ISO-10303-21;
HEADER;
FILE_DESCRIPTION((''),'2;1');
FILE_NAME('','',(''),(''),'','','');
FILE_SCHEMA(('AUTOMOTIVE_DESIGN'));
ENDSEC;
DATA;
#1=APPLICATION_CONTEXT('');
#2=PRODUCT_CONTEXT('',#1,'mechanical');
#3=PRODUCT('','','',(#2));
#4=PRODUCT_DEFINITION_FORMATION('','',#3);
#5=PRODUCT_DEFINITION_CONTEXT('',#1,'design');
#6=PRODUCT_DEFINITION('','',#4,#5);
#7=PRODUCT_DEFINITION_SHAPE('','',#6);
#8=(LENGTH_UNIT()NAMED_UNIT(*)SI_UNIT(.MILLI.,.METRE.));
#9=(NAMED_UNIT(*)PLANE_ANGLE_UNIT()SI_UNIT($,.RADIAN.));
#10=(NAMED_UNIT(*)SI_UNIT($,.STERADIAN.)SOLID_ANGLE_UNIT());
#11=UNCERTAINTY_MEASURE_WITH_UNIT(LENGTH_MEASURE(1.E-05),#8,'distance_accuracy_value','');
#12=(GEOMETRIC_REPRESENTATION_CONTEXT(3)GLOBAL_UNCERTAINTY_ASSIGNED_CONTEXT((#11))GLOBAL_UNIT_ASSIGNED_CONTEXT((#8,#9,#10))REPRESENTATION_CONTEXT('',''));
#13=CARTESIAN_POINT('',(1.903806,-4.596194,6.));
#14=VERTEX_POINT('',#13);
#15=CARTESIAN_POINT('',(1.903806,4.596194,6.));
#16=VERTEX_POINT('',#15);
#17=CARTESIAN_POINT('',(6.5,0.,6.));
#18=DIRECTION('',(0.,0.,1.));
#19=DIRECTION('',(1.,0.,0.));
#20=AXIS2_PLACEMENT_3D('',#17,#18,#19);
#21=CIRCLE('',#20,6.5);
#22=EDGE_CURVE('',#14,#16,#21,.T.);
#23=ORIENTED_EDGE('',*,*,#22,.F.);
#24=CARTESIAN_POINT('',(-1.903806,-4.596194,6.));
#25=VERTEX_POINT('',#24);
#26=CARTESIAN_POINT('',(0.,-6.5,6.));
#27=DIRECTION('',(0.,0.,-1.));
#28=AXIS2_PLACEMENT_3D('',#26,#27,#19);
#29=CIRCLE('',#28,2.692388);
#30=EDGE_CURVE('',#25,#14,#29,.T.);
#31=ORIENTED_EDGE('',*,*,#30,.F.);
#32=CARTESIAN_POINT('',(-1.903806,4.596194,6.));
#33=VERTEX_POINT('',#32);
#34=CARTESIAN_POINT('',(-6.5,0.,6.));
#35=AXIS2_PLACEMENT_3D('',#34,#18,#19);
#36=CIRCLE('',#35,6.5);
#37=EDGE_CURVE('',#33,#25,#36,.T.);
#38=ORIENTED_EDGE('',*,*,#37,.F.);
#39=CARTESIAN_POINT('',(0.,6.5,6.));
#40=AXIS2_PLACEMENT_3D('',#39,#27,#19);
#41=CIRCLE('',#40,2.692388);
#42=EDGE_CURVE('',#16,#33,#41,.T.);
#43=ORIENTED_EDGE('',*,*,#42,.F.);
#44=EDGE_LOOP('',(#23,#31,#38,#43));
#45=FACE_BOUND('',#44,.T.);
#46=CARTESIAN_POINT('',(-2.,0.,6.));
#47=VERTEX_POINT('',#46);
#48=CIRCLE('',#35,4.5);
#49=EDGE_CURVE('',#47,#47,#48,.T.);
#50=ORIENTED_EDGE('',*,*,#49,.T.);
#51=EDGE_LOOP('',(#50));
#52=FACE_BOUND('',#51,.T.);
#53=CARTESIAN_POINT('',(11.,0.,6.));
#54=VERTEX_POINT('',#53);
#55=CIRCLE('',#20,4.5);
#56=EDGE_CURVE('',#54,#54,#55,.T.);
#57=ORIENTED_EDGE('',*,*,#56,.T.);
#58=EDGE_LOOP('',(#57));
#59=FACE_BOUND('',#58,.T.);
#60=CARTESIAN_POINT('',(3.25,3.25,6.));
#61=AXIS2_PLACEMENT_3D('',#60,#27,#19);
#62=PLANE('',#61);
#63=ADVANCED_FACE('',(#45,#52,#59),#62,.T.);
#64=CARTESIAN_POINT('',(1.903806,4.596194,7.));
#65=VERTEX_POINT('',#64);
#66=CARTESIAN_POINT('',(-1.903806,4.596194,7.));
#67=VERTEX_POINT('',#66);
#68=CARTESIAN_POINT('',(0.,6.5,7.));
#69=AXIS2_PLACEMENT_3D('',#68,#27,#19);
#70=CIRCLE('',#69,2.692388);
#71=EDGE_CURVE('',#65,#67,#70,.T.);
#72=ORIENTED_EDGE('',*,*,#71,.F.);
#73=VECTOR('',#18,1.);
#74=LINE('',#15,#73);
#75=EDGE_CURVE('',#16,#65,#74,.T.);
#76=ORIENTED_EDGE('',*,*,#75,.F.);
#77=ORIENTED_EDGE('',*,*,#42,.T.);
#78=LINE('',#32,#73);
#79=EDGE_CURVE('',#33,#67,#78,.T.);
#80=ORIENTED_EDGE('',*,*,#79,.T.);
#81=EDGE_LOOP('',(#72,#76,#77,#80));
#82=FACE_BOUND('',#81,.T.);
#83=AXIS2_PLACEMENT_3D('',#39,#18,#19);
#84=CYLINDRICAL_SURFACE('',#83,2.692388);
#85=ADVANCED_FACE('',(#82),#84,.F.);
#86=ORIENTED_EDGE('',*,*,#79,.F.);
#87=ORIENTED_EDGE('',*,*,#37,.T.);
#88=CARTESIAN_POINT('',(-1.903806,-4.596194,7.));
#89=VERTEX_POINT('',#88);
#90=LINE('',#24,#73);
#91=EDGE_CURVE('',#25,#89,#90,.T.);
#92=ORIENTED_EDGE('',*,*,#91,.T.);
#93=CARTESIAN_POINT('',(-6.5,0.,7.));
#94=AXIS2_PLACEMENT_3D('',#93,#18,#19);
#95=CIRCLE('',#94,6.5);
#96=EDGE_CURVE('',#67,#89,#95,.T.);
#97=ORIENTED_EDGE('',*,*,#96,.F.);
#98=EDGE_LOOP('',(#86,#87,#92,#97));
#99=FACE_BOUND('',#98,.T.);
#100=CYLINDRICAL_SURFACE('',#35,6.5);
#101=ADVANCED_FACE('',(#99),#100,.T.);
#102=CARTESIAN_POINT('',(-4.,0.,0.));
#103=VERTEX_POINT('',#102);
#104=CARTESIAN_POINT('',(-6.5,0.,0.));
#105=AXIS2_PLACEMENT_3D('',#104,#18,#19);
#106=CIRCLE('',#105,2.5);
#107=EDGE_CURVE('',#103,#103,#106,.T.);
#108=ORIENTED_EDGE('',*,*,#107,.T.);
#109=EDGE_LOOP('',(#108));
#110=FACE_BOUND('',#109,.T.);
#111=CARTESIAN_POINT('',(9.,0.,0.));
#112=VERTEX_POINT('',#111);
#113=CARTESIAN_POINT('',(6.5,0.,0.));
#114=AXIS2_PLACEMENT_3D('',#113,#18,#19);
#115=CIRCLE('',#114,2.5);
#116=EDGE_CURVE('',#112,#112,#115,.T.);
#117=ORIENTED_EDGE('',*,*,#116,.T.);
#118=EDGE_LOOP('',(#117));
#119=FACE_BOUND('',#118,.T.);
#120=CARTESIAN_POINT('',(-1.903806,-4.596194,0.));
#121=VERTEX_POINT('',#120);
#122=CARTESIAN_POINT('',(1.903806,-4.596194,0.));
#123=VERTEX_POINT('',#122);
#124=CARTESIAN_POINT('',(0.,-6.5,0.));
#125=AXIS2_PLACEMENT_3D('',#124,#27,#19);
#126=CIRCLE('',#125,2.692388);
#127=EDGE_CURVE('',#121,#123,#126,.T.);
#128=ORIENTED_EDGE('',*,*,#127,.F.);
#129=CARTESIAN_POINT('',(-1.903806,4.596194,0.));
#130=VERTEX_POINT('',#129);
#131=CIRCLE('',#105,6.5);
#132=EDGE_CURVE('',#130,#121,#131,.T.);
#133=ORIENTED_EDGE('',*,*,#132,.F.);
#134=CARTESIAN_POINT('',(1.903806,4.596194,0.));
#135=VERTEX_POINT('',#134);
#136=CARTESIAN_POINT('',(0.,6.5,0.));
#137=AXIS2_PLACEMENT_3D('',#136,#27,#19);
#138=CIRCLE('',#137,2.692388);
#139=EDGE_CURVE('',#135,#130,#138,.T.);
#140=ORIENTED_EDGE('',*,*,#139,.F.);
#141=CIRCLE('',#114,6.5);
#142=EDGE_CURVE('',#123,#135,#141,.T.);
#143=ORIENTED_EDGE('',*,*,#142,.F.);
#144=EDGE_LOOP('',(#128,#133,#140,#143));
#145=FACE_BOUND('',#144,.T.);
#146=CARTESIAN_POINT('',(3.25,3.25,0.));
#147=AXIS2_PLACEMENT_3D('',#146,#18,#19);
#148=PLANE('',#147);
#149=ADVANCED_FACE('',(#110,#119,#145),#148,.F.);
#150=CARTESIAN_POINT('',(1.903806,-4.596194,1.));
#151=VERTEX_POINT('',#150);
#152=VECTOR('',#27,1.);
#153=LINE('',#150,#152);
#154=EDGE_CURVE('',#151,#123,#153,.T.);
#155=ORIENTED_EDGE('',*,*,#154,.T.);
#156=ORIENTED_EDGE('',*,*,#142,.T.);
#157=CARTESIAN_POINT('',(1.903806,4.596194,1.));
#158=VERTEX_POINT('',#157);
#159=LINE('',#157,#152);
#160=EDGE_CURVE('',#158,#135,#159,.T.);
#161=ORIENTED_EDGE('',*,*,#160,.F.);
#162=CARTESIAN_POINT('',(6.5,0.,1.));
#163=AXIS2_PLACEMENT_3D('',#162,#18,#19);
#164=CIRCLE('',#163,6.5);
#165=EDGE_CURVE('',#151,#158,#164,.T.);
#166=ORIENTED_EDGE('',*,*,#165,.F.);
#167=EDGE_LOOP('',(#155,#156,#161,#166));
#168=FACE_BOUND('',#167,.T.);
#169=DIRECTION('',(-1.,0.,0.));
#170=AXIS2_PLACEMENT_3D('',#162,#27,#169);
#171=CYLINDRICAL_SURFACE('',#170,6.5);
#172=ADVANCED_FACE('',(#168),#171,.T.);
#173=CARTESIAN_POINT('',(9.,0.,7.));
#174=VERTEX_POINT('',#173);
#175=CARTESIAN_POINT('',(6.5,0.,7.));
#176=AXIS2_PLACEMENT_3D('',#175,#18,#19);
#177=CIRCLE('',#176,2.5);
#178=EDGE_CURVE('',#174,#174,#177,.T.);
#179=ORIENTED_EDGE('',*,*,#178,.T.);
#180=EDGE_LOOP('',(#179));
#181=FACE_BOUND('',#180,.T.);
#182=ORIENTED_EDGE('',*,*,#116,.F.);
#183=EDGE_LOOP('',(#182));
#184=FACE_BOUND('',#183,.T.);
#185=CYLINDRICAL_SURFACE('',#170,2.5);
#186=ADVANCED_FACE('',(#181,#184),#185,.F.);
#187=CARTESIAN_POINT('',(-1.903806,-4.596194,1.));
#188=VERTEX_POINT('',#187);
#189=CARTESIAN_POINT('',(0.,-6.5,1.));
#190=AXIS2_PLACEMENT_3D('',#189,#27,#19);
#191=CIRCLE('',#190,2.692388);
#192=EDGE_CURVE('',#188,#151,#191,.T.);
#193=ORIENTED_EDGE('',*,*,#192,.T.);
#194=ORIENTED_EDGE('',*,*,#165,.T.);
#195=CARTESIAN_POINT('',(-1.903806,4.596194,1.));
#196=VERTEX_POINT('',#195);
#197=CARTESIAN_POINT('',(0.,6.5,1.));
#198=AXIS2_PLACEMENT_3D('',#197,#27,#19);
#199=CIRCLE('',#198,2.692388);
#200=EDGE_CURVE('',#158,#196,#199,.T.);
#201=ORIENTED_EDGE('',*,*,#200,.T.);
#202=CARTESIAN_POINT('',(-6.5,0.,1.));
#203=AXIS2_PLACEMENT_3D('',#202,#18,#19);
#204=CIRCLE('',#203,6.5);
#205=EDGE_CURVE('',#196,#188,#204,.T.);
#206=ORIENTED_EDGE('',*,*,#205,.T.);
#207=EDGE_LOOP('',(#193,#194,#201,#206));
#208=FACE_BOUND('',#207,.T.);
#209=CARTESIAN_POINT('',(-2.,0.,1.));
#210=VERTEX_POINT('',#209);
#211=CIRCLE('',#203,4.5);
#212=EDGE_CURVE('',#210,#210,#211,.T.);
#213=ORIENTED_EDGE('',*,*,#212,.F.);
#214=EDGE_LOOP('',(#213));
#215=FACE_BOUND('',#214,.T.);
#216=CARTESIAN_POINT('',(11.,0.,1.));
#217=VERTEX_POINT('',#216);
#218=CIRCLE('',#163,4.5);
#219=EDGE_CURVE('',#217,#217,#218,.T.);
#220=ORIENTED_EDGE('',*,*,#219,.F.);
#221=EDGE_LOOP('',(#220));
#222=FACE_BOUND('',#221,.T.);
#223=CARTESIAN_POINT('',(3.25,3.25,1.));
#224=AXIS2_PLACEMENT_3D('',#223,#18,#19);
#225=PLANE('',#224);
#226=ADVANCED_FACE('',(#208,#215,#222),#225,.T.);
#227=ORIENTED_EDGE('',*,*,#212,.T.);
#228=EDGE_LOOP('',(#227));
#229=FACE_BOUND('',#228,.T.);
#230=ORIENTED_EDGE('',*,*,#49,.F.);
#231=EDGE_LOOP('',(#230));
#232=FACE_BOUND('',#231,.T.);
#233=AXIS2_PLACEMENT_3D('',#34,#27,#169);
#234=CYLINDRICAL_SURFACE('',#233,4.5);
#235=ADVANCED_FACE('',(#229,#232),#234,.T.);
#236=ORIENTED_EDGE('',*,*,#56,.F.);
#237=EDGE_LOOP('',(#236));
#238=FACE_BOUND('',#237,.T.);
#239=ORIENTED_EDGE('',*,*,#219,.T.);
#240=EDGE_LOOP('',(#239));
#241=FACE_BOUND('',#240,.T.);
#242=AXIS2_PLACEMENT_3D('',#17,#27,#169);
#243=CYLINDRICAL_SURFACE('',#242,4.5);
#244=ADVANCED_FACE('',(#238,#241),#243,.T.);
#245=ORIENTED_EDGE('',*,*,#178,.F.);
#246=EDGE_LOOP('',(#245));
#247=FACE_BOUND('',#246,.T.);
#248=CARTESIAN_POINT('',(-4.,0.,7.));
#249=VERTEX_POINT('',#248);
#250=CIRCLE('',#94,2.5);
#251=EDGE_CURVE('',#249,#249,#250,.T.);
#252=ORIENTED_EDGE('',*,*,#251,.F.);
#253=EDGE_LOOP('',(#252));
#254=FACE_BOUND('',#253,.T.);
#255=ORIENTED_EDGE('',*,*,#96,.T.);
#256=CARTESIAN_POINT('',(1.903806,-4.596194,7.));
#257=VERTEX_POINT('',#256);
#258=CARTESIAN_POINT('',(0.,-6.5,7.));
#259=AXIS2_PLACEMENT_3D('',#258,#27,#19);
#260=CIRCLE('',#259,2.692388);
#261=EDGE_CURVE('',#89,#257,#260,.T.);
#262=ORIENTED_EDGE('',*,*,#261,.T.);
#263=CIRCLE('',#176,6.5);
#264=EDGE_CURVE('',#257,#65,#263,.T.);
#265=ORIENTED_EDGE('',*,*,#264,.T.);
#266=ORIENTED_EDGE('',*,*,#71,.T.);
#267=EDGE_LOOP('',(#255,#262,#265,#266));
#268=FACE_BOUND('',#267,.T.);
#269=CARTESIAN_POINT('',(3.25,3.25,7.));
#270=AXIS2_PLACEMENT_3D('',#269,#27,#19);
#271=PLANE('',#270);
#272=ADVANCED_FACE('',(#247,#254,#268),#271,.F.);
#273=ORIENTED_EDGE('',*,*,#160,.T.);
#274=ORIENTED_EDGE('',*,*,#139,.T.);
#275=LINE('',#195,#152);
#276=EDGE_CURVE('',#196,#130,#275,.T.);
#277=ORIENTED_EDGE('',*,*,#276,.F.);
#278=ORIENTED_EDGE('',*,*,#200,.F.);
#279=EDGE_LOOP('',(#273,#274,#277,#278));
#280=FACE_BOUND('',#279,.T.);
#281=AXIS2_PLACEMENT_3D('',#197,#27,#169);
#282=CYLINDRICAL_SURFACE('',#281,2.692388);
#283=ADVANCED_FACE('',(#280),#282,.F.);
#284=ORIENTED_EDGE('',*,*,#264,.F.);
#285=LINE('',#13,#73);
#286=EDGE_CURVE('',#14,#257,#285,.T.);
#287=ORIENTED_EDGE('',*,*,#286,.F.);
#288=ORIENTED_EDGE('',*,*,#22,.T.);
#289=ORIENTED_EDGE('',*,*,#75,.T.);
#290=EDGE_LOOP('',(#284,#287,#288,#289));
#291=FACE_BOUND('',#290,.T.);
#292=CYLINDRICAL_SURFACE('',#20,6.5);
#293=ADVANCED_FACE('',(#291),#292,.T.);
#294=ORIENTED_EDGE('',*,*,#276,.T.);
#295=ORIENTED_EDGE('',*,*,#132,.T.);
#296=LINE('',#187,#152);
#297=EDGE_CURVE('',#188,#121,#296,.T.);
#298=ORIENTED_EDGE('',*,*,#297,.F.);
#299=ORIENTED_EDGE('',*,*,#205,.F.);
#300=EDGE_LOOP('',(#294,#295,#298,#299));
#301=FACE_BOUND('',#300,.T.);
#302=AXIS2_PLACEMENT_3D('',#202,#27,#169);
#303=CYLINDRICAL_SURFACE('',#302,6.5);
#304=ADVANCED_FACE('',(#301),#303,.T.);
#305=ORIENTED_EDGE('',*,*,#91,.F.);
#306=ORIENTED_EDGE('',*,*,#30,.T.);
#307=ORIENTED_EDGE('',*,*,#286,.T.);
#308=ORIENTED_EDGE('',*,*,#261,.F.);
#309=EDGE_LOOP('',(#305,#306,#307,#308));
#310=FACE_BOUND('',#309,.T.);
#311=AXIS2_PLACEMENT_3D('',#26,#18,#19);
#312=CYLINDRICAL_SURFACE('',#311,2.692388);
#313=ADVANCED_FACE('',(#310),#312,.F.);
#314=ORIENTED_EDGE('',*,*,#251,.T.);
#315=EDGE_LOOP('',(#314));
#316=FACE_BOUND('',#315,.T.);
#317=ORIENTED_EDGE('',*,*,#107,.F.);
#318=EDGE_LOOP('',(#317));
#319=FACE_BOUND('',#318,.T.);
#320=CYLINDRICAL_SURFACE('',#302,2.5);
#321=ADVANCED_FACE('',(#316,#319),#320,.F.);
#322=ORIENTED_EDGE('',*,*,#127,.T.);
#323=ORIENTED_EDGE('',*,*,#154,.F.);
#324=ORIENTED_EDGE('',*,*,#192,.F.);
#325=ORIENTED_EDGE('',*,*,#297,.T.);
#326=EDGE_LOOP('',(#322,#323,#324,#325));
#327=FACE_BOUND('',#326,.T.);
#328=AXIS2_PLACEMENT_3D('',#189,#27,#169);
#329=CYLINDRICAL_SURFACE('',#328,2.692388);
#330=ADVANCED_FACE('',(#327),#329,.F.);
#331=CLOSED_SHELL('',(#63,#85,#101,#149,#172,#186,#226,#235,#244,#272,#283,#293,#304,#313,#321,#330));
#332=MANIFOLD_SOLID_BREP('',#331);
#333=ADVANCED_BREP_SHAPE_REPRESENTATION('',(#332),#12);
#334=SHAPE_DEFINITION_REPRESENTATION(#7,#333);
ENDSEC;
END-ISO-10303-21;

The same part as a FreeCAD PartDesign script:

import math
import FreeCAD as App
import Part
import Sketcher
from FreeCAD import Vector

doc = App.newDocument("Part")
body = doc.addObject("PartDesign::Body", "Body")

# Sketch on XY plane
sketch1 = body.newObject("Sketcher::SketchObject", "Sketch")
sketch1.AttachmentSupport = (doc.getObject("XY_Plane"), [""])
sketch1.MapMode = "FlatFace"
sketch1.addGeometry(Part.ArcOfCircle(Part.Circle(Vector(-6.5, 0, 0), Vector(0, 0, 1), 6.5), math.radians(45), math.radians(315)), False)
sketch1.addGeometry(Part.ArcOfCircle(Part.Circle(Vector(0, -6.5, 0), Vector(0, 0, 1), 2.7), math.radians(45), math.radians(135)), False)
sketch1.addGeometry(Part.ArcOfCircle(Part.Circle(Vector(6.5, 0, 0), Vector(0, 0, 1), 6.5), math.radians(-135), math.radians(135)), False)
sketch1.addGeometry(Part.ArcOfCircle(Part.Circle(Vector(0, 6.5, 0), Vector(0, 0, 1), 2.7), math.radians(-135), math.radians(-45)), False)
sketch1.addGeometry(Part.Circle(Vector(-6.5, 0, 0), Vector(0, 0, 1), 2.5), False)
sketch1.addGeometry(Part.Circle(Vector(6.5, 0, 0), Vector(0, 0, 1), 2.5), False)
sketch1.addConstraint(Sketcher.Constraint("Tangent", 0, 2, 1, 2))
sketch1.addConstraint(Sketcher.Constraint("Tangent", 1, 1, 2, 1))
sketch1.addConstraint(Sketcher.Constraint("Tangent", 2, 2, 3, 2))
sketch1.addConstraint(Sketcher.Constraint("Tangent", 3, 1, 0, 1))
sketch1.addConstraint(Sketcher.Constraint("Coincident", 4, 3, 0, 3))
sketch1.addConstraint(Sketcher.Constraint("Coincident", 5, 3, 2, 3))
sketch1.addConstraint(Sketcher.Constraint("Equal", 0, 2))
sketch1.addConstraint(Sketcher.Constraint("Equal", 1, 3))
sketch1.addConstraint(Sketcher.Constraint("Equal", 4, 5))
sketch1.addConstraint(Sketcher.Constraint("Symmetric", 0, 3, 2, 3, -1, 1))
sketch1.addConstraint(Sketcher.Constraint("PointOnObject", 0, 3, -1))
sketch1.addConstraint(Sketcher.Constraint("Diameter", 4, 5.0))
sketch1.addConstraint(Sketcher.Constraint("Radius", 0, 6.5))
sketch1.addConstraint(Sketcher.Constraint("DistanceX", 0, 3, 2, 3, 13.0))
sketch1.addConstraint(Sketcher.Constraint("DistanceY", 1, 3, 3, 3, 13.0))
pad1 = body.newObject("PartDesign::Pad", "Pad")
pad1.Profile = sketch1
pad1.Length = 1

# Sketch on XY plane
sketch2 = body.newObject("Sketcher::SketchObject", "Sketch001")
sketch2.AttachmentSupport = (doc.getObject("XY_Plane"), [""])
sketch2.MapMode = "FlatFace"
sketch2.AttachmentOffset = App.Placement(Vector(0, 0, 1), App.Rotation())
sketch2.addGeometry(Part.Circle(Vector(6.5, 0, 0), Vector(0, 0, 1), 4.5), False)
sketch2.addGeometry(Part.Circle(Vector(6.5, 0, 0), Vector(0, 0, 1), 2.5), False)
sketch2.addGeometry(Part.Circle(Vector(-6.5, 0, 0), Vector(0, 0, 1), 4.5), False)
sketch2.addGeometry(Part.Circle(Vector(-6.5, 0, 0), Vector(0, 0, 1), 2.5), False)
sketch2.addConstraint(Sketcher.Constraint("Coincident", 1, 3, 0, 3))
sketch2.addConstraint(Sketcher.Constraint("Coincident", 3, 3, 2, 3))
sketch2.addConstraint(Sketcher.Constraint("Equal", 0, 2))
sketch2.addConstraint(Sketcher.Constraint("Equal", 1, 3))
sketch2.addConstraint(Sketcher.Constraint("Symmetric", 0, 3, 2, 3, -1, 1))
sketch2.addConstraint(Sketcher.Constraint("PointOnObject", 0, 3, -1))
sketch2.addConstraint(Sketcher.Constraint("Diameter", 0, 9.0))
sketch2.addConstraint(Sketcher.Constraint("Diameter", 1, 5.0))
sketch2.addConstraint(Sketcher.Constraint("DistanceX", 2, 3, 0, 3, 13.0))
pad2 = body.newObject("PartDesign::Pad", "Pad001")
pad2.Profile = sketch2
pad2.Length = 5
doc.recompute()

datumplane = body.newObject("PartDesign::Plane", "DatumPlane")
datumplane.AttachmentSupport = (doc.getObject("XY_Plane"), [""])
datumplane.MapMode = "FlatFace"
datumplane.AttachmentOffset = App.Placement(Vector(0, 0, 3.5), App.Rotation())
mirrored = body.newObject("PartDesign::Mirrored", "Mirrored")
mirrored.Originals = [pad1]
mirrored.MirrorPlane = (datumplane, [""])
body.Tip = mirrored

doc.recompute()
